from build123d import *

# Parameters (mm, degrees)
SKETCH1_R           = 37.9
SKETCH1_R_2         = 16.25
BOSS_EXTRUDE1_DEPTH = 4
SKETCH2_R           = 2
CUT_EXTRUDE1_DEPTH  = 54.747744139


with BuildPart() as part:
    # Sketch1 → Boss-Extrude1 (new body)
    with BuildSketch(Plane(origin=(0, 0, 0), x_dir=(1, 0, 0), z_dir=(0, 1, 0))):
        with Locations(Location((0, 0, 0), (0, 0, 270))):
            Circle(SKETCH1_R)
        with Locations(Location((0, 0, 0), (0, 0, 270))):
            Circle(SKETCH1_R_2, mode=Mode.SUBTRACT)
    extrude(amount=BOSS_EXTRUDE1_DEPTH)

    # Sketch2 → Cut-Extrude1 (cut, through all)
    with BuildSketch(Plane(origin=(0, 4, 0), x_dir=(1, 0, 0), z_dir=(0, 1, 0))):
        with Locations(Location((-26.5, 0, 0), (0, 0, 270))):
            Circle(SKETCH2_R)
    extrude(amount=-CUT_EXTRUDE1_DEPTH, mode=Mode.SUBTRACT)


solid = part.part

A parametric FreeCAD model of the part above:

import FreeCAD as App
import Part
import Sketcher
from FreeCAD import Vector

doc = App.newDocument("Part")
params = doc.addObject("Spreadsheet::Sheet", "Params")
for row, (alias, value) in enumerate([
    ("sketch1_diameter", "75.8 mm"),
    ("sketch1_diameter2", "32.5 mm"),
    ("pad1_length", "4 mm"),
    ("sketch2_diameter", "4 mm"),
], start=1):
    params.set(f"A{row}", alias)
    params.set(f"B{row}", "=" + value)
    params.setAlias(f"B{row}", alias)

body = doc.addObject("PartDesign::Body", "Body")

# Sketch on XZ plane
sketch1 = body.newObject("Sketcher::SketchObject", "Sketch")
sketch1.AttachmentSupport = (doc.getObject("XZ_Plane"), [""])
sketch1.MapMode = "FlatFace"
sketch1.addGeometry(Part.Circle(Vector(0, 0, 0), Vector(0, 0, 1), 38), False)
sketch1.addGeometry(Part.Circle(Vector(0, 0, 0), Vector(0, 0, 1), 16), False)
sketch1.addConstraint(Sketcher.Constraint("Coincident", 0, 3, -1, 1))
sketch1.addConstraint(Sketcher.Constraint("Coincident", 1, 3, -1, 1))
sketch1.addConstraint(Sketcher.Constraint("Diameter", 0, 75.8))
sketch1.addConstraint(Sketcher.Constraint("Diameter", 1, 32.5))
sketch1.setExpression("Constraints[2]", "Params.sketch1_diameter")
sketch1.setExpression("Constraints[3]", "Params.sketch1_diameter2")
pad1 = body.newObject("PartDesign::Pad", "Pad")
pad1.Profile = sketch1
pad1.setExpression("Length", "Params.pad1_length")
pad1.Reversed = True

# Sketch on XZ plane
sketch2 = body.newObject("Sketcher::SketchObject", "Sketch001")
sketch2.AttachmentSupport = (doc.getObject("XZ_Plane"), [""])
sketch2.MapMode = "FlatFace"
sketch2.AttachmentOffset = App.Placement(Vector(0, 0, -4), App.Rotation())
sketch2.addGeometry(Part.Circle(Vector(-26.5, 0, 0), Vector(0, 0, 1), 2), False)
sketch2.addConstraint(Sketcher.Constraint("PointOnObject", 0, 3, -1))
sketch2.addConstraint(Sketcher.Constraint("Diameter", 0, 4.0))
sketch2.addConstraint(Sketcher.Constraint("DistanceX", 0, 3, -1, 1, 26.5))
sketch2.setExpression("Constraints[1]", "Params.sketch2_diameter")
pocket1 = body.newObject("PartDesign::Pocket", "Pocket")
pocket1.Profile = sketch2
pocket1.Type = "ThroughAll"
pocket1.Reversed = True

doc.recompute()
